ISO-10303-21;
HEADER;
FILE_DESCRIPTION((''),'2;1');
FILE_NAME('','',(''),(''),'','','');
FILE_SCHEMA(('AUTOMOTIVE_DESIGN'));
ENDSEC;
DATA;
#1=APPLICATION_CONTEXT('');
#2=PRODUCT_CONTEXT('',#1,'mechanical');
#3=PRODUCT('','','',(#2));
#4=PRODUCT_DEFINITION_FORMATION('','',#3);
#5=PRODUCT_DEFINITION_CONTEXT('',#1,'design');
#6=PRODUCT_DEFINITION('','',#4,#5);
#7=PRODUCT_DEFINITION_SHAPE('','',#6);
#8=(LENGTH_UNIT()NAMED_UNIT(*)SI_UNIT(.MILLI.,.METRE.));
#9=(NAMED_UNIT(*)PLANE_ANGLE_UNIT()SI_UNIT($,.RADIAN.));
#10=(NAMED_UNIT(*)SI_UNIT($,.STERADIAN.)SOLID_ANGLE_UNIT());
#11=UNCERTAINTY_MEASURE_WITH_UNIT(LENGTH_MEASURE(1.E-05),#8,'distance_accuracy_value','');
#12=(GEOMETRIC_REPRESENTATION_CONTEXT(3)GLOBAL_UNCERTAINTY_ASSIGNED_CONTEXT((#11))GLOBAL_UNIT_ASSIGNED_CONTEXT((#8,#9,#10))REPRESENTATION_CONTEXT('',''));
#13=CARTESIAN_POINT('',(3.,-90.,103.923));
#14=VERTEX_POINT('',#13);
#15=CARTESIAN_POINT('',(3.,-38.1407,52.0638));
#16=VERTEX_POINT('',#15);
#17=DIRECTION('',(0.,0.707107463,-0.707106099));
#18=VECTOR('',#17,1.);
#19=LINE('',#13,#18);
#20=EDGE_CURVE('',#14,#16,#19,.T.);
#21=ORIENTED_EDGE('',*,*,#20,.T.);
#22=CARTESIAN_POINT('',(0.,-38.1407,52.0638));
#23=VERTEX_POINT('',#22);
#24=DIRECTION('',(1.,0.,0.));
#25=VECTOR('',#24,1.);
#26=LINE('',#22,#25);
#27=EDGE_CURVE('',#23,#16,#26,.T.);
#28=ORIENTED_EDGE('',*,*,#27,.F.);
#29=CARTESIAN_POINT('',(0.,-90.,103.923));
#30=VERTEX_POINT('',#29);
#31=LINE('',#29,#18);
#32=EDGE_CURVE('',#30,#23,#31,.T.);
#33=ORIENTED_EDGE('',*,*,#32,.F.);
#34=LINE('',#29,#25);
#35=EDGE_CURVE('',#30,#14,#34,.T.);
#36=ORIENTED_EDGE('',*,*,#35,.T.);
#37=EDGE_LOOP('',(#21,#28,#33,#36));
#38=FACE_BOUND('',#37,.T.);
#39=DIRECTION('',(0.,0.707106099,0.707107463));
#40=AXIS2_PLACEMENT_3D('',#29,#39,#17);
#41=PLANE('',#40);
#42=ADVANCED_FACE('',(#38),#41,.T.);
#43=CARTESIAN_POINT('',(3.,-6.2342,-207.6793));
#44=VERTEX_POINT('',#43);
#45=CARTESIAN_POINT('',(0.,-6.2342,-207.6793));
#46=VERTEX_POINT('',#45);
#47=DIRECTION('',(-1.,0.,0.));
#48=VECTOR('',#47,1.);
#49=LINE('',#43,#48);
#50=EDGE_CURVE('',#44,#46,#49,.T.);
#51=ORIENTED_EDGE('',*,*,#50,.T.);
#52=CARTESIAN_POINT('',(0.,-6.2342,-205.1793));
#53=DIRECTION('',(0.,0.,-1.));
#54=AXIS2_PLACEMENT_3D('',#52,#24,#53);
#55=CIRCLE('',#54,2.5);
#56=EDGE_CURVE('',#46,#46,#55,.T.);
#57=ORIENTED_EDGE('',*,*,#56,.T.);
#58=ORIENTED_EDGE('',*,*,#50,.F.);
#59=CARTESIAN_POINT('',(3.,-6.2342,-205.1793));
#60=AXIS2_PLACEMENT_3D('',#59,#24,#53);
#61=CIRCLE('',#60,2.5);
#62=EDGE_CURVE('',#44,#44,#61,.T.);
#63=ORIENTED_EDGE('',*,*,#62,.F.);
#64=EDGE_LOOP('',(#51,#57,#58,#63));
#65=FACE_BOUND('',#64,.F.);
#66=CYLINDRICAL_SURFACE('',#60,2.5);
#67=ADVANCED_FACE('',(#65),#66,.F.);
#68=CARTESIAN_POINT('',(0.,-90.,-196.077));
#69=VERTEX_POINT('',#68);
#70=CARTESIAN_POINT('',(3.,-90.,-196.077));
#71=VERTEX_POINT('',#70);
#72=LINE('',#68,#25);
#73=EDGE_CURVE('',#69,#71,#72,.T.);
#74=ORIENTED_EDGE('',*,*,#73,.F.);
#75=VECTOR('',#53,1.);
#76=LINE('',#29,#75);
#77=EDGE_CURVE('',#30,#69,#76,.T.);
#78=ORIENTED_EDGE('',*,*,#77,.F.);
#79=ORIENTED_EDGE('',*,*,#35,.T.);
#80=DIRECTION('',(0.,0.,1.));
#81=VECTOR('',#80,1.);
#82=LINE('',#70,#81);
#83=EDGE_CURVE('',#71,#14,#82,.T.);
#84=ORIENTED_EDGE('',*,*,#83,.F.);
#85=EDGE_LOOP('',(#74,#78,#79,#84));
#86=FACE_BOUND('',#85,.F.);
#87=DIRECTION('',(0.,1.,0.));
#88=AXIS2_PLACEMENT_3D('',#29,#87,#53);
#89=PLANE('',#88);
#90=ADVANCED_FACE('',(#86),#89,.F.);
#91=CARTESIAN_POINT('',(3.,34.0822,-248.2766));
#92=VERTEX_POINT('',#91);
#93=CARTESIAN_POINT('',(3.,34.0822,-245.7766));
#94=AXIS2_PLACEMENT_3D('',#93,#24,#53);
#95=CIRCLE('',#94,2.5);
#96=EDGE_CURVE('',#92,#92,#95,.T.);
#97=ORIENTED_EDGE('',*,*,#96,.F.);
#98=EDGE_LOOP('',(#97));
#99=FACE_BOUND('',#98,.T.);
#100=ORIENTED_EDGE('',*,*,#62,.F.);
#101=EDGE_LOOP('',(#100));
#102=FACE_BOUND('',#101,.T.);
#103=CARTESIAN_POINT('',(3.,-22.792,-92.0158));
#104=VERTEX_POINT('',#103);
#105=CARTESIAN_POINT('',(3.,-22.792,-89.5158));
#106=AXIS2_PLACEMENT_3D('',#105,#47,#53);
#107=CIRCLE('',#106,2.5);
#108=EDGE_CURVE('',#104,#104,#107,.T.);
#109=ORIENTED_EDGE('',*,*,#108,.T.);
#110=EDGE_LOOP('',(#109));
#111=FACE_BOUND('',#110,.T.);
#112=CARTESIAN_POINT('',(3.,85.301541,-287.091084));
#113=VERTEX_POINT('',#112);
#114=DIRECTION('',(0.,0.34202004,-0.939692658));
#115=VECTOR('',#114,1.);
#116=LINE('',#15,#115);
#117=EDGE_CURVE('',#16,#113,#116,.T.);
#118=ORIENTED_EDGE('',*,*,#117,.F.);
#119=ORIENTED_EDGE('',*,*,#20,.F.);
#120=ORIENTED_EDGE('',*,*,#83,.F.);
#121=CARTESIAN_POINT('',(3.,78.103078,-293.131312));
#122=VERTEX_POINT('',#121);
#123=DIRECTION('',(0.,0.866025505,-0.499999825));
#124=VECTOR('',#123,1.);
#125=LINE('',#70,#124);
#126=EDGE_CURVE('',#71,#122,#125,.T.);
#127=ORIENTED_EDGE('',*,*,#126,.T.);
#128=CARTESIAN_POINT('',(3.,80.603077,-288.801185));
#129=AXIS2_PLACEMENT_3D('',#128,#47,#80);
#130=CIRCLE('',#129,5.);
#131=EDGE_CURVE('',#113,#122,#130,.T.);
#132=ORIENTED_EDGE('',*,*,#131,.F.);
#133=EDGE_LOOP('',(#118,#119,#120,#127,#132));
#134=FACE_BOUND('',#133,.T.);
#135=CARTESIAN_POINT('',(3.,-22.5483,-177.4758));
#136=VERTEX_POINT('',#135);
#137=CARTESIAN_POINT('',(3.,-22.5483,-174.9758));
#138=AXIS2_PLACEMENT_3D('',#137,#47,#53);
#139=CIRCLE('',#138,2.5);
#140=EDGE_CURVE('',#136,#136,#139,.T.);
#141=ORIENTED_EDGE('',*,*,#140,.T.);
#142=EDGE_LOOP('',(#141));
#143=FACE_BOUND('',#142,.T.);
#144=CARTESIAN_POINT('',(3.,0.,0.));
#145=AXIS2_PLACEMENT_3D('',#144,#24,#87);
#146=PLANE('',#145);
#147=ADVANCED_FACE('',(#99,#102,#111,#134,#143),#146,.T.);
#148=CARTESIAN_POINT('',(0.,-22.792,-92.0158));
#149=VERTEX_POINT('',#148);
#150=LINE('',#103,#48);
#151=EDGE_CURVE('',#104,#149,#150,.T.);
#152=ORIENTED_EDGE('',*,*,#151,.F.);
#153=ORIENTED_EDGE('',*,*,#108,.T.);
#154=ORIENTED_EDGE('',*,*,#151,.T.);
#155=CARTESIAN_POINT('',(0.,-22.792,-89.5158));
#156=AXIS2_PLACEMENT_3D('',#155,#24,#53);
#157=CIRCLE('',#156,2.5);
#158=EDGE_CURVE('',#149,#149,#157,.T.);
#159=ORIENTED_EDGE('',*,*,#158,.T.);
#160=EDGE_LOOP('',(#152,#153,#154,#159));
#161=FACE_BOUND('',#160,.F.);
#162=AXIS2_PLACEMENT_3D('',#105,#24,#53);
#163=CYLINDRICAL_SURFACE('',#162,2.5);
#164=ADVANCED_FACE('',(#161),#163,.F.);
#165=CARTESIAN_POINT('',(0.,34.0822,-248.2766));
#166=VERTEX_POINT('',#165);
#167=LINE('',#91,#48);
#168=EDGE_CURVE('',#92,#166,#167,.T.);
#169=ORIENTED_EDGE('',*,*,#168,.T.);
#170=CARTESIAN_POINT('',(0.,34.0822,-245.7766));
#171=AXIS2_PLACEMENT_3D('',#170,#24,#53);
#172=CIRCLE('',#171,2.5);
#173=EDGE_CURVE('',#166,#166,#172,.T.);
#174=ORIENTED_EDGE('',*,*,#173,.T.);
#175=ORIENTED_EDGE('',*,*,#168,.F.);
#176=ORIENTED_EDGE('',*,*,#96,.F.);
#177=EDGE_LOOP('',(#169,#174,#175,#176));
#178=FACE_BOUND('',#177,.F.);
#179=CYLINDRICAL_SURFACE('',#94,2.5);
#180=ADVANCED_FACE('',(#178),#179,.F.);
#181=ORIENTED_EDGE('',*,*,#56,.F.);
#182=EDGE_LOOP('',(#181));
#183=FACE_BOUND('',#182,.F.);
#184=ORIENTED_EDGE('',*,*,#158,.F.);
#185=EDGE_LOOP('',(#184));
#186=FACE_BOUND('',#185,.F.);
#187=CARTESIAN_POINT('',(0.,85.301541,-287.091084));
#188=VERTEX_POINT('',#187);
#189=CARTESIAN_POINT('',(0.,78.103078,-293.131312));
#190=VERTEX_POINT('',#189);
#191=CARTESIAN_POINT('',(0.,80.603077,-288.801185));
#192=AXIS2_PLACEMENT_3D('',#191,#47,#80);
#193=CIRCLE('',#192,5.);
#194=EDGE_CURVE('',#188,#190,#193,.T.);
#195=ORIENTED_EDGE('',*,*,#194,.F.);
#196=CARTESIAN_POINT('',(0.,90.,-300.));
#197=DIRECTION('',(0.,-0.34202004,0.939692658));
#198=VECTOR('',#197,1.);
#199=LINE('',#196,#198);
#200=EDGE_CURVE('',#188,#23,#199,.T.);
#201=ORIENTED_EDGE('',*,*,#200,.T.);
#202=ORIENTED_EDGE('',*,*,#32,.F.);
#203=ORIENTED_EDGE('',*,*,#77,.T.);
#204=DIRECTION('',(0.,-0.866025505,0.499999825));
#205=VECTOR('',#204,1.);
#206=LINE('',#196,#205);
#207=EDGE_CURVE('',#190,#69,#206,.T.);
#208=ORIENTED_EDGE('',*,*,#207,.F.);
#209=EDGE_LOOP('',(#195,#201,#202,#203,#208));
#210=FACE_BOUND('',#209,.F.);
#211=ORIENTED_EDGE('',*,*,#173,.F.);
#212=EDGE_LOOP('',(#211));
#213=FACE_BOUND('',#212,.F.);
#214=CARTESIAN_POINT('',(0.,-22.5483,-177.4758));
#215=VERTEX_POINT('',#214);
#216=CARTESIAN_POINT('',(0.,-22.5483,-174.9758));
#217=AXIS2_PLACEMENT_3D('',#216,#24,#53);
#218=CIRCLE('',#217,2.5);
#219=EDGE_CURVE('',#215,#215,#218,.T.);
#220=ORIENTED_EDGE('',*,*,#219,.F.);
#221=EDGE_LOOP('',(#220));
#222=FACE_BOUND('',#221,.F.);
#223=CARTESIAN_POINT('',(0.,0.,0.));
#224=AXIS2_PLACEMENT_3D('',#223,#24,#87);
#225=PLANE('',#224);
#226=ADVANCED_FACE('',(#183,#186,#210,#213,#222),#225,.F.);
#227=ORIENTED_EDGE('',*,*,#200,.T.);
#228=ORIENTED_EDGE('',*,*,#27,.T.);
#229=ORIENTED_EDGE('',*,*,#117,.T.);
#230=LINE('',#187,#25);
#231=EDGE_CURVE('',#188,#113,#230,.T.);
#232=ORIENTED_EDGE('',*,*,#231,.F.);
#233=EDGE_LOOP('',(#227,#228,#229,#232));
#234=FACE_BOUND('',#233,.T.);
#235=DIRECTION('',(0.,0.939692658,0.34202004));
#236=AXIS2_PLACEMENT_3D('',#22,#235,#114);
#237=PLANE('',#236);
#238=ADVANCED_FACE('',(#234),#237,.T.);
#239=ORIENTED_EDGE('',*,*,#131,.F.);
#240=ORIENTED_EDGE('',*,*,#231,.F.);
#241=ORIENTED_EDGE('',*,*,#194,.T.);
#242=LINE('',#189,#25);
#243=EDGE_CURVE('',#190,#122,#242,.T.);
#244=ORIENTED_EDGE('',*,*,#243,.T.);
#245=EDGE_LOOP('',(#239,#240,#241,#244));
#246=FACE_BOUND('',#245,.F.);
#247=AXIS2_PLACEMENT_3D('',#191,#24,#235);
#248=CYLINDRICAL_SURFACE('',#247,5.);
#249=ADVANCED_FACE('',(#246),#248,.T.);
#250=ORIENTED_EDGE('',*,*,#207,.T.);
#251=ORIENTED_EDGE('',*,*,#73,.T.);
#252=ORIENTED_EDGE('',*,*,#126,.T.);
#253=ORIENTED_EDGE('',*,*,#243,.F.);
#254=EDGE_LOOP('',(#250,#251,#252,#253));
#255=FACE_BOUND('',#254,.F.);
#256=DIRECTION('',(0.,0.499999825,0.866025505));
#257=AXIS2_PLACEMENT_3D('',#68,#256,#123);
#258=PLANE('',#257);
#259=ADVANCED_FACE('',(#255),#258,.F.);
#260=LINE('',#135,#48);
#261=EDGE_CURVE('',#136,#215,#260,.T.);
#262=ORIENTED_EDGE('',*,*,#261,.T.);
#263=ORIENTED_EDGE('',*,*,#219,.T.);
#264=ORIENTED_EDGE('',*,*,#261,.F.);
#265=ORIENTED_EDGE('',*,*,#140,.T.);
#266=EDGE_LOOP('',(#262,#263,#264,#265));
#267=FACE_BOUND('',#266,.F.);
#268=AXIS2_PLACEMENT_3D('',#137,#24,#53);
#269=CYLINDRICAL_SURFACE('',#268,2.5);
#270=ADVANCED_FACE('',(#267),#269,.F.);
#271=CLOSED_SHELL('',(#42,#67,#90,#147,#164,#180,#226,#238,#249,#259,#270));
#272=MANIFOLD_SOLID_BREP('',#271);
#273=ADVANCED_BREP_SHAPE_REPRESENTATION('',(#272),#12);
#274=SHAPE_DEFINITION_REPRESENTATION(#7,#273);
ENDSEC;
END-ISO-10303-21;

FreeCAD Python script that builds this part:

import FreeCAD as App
import Part
import Sketcher
Q = App.Units.Quantity


def edges_at(feature, points):
    """Names of the edges that pass closest to the given points."""
    edges = feature.Shape.Edges
    near = lambda p: min(range(len(edges)), key=lambda i: edges[i].distToShape(Part.Vertex(*p))[0])
    return sorted({f"Edge{near(p) + 1}" for p in points})

doc = App.newDocument("Part")
params = doc.addObject("Spreadsheet::Sheet", "Params")
for row, (alias, value) in enumerate([
    ("sketch1_height", "300 mm"),
    ("pad1_length", "3 mm"),
    ("fillet_radius", "5 mm"),
    ("sketch2_diameter", "5 mm"),
], start=1):
    params.set(f"A{row}", alias)
    params.set(f"B{row}", "=" + value)
    params.setAlias(f"B{row}", alias)

body = doc.addObject("PartDesign::Body", "Body")

# Sketch on YZ plane
sketch1 = doc.addObject("Sketcher::SketchObject", "Sketch")
body.addObject(sketch1)
sketch1.AttachmentSupport = (doc.YZ_Plane, [""])
sketch1.MapMode = "FlatFace"
sketch1.addGeometry([
    Part.LineSegment(App.Vector(-38.1407, 52.0638, 0), App.Vector(-90, 103.923, 0)),
    Part.LineSegment(App.Vector(-90, 103.923, 0), App.Vector(-90, -196.077, 0)),
    Part.LineSegment(App.Vector(-90, -196.077, 0), App.Vector(90, -300, 0)),
    Part.LineSegment(App.Vector(90, -300, 0), App.Vector(-38.1407, 52.0638, 0)),
], False)
sketch1.addConstraint([
    Sketcher.Constraint("Coincident", 0, 2, 1, 1),
    Sketcher.Constraint("Coincident", 1, 2, 2, 1),
    Sketcher.Constraint("Coincident", 2, 2, 3, 1),
    Sketcher.Constraint("Coincident", 3, 2, 0, 1),
    Sketcher.Constraint("Vertical", 1),
    Sketcher.Constraint("DistanceY", 1, 2, 1, 1, Q("300 mm")),
    Sketcher.Constraint("DistanceX", 0, 2, -1, 1, Q("90 mm")),
    Sketcher.Constraint("DistanceX", -1, 1, 2, 2, Q("90 mm")),
    Sketcher.Constraint("DistanceY", 2, 2, -1, 1, Q("300 mm")),
    Sketcher.Constraint("Angle", 0, Q("135 deg")),
    Sketcher.Constraint("Angle", 2, Q("-30 deg")),
    Sketcher.Constraint("Angle", 3, Q("110 deg")),
])
sketch1.setExpression("Constraints[5]", "Params.sketch1_height")
pad1 = doc.addObject("PartDesign::Pad", "Pad")
body.addObject(pad1)
pad1.Profile = sketch1
pad1.setExpression("Length", "Params.pad1_length")
doc.recompute()

fillet = doc.addObject("PartDesign::Fillet", "Fillet")
body.addObject(fillet)
fillet.Base = (pad1, edges_at(pad1, [(1.5, 90, -300)]))
fillet.setExpression("Radius", "Params.fillet_radius")

# Sketch on YZ plane
sketch2 = doc.addObject("Sketcher::SketchObject", "Sketch001")
body.addObject(sketch2)
sketch2.AttachmentSupport = (doc.YZ_Plane, [""])
sketch2.MapMode = "FlatFace"
sketch2.AttachmentOffset = App.Placement(App.Vector(0, 0, 3), App.Rotation())
sketch2.addGeometry([
    Part.Circle(App.Vector(34.0822, -245.7766, 0), App.Vector(0, 0, 1), 2.5),
    Part.Circle(App.Vector(-6.2342, -205.1793, 0), App.Vector(0, 0, 1), 2.5),
    Part.Circle(App.Vector(-22.5483, -174.9758, 0), App.Vector(0, 0, 1), 2.5),
    Part.Circle(App.Vector(-22.792, -89.5158, 0), App.Vector(0, 0, 1), 2.5),
], False)
sketch2.addConstraint([
    Sketcher.Constraint("Equal", 0, 1),
    Sketcher.Constraint("Equal", 1, 2),
    Sketcher.Constraint("Equal", 2, 3),
    Sketcher.Constraint("Diameter", 0, Q("5 mm")),
    Sketcher.Constraint("DistanceY", 2, 3, 3, 3, Q("85.46 mm")),
    Sketcher.Constraint("DistanceX", 3, 3, -1, 1, Q("22.792 mm")),
    Sketcher.Constraint("DistanceX", 2, 3, 1, 3, Q("16.314 mm")),
    Sketcher.Constraint("DistanceX", -1, 1, 0, 3, Q("34.0822 mm")),
    Sketcher.Constraint("DistanceY", 0, 3, -1, 1, Q("245.7766 mm")),
    Sketcher.Constraint("DistanceX", 1, 3, -1, 1, Q("6.2342 mm")),
    Sketcher.Constraint("DistanceY", 1, 3, -1, 1, Q("205.1793 mm")),
    Sketcher.Constraint("DistanceY", 2, 3, -1, 1, Q("174.9758 mm")),
])
sketch2.setExpression("Constraints[3]", "Params.sketch2_diameter")
pocket1 = doc.addObject("PartDesign::Pocket", "Pocket")
body.addObject(pocket1)
pocket1.Profile = sketch2
pocket1.Type = "ThroughAll"

doc.recompute()
